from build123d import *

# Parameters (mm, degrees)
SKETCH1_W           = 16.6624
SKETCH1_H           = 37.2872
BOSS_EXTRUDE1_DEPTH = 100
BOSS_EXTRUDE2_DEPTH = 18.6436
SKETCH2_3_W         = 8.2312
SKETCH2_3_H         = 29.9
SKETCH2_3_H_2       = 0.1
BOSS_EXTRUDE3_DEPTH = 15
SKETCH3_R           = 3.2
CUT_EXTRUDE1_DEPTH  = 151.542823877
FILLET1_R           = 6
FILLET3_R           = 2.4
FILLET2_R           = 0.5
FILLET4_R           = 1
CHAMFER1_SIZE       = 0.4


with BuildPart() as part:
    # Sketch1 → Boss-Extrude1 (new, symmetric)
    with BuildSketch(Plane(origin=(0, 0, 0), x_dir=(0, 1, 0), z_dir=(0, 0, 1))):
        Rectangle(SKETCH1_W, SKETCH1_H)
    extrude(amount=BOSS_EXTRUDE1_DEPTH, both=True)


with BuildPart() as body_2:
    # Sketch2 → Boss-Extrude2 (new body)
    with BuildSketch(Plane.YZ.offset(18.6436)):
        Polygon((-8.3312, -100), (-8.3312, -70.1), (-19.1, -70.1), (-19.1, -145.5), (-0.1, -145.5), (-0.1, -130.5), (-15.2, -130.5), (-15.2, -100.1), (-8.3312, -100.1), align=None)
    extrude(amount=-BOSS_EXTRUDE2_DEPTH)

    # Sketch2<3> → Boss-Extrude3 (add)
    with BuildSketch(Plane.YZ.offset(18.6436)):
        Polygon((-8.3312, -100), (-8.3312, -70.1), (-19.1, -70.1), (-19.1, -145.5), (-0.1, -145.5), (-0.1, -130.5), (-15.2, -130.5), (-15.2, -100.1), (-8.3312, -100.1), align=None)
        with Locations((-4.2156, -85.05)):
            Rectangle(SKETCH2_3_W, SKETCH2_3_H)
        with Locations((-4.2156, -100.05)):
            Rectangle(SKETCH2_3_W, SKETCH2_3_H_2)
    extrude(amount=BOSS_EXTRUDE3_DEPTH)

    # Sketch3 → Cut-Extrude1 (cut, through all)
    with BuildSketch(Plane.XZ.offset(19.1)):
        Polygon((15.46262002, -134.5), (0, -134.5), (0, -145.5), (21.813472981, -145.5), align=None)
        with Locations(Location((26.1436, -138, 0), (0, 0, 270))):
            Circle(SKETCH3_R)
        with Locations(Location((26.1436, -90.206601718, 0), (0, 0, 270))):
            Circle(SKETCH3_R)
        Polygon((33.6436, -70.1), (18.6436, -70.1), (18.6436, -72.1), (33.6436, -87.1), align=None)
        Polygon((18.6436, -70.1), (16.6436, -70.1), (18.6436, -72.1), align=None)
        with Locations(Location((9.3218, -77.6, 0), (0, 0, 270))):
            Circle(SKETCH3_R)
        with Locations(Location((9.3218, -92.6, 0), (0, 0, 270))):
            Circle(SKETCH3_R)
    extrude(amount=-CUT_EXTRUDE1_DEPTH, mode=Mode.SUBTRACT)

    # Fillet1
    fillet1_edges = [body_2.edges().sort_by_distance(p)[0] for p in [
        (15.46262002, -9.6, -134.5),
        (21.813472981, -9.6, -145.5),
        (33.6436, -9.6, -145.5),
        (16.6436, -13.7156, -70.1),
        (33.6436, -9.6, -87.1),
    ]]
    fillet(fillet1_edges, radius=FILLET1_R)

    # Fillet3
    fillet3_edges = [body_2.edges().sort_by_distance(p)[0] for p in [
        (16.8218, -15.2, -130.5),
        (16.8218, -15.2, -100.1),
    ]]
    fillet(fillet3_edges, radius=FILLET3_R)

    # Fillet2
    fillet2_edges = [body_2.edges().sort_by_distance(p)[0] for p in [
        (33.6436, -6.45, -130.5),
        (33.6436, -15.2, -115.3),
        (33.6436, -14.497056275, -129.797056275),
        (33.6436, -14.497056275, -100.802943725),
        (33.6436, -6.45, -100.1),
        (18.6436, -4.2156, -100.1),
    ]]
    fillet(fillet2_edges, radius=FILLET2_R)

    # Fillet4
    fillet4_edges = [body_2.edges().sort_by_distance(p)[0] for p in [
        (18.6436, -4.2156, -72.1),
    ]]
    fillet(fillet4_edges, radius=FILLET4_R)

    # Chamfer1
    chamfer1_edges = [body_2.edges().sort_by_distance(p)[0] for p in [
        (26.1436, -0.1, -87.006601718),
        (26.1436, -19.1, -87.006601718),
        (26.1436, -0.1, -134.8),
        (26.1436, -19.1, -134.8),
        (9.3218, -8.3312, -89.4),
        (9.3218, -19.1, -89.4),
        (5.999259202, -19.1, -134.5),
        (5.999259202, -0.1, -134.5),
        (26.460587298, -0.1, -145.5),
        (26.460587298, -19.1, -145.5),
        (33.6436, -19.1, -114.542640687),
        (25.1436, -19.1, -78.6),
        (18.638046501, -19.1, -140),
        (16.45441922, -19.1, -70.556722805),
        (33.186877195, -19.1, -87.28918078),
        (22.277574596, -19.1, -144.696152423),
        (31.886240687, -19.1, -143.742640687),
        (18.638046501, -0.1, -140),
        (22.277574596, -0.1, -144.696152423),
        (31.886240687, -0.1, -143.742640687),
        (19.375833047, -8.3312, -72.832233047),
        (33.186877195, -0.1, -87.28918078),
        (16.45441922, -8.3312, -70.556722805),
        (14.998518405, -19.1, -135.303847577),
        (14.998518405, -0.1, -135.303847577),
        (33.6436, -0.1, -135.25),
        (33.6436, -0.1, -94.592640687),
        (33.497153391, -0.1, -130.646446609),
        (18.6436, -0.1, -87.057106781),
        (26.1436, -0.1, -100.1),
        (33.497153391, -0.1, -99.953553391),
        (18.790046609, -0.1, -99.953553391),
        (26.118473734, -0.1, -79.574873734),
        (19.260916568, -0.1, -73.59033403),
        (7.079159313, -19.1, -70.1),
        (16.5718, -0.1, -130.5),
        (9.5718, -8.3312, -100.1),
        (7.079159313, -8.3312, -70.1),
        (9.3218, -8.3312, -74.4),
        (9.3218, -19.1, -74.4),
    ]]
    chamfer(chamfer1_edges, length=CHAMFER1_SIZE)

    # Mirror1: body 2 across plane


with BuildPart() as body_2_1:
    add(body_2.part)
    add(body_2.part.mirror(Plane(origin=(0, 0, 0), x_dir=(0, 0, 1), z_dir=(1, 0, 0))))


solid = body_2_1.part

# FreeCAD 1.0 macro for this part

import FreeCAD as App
import Part
import Sketcher

V = App.Vector
Q = App.Units.Quantity


def edges_at(feature, points):
    """Names of the edges that pass closest to the given points."""
    edges = feature.Shape.Edges
    near = lambda p: min(range(len(edges)), key=lambda i: edges[i].distToShape(Part.Vertex(*p))[0])
    return sorted({f"Edge{near(p) + 1}" for p in points})


def add_polygon(sketch, points):
    """Adds a closed chain of lines whose ends are joined by coincident constraints."""
    first, n = sketch.GeometryCount, len(points)
    for a, b in zip(points, points[1:] + points[:1]):
        sketch.addGeometry(Part.LineSegment(App.Vector(*a, 0), App.Vector(*b, 0)), False)
    for i in range(n):
        sketch.addConstraint(Sketcher.Constraint("Coincident", first + i, 2, first + (i + 1) % n, 1))

doc = App.newDocument("Part")
body = doc.addObject("PartDesign::Body", "Body")

# Sketch on XY plane
sketch1 = doc.addObject("Sketcher::SketchObject", "Sketch")
body.addObject(sketch1)
sketch1.AttachmentSupport = (doc.XY_Plane, [""])
sketch1.MapMode = "FlatFace"
add_polygon(sketch1, [(-19, -8), (19, -8), (19, 8), (-19, 8)])  # lines 0-3
sketch1.addConstraint(Sketcher.Constraint("Horizontal", 0))
sketch1.addConstraint(Sketcher.Constraint("Vertical", 1))
sketch1.addConstraint(Sketcher.Constraint("Horizontal", 2))
sketch1.addConstraint(Sketcher.Constraint("Vertical", 3))
sketch1.addConstraint(Sketcher.Constraint("Symmetric", 0, 2, 2, 2, -1, 1))
sketch1.addConstraint(Sketcher.Constraint("DistanceX", 0, 1, 0, 2, Q("37.2872 mm")))
sketch1.addConstraint(Sketcher.Constraint("DistanceY", 1, 1, 1, 2, Q("16.6624 mm")))
pad1 = doc.addObject("PartDesign::Pad", "Pad")
body.addObject(pad1)
pad1.Profile = sketch1
pad1.Length = 200
pad1.Midplane = True
body2 = doc.addObject("PartDesign::Body", "Body001")

# Sketch on YZ plane
sketch2 = doc.addObject("Sketcher::SketchObject", "Sketch001")
body2.addObject(sketch2)
sketch2.AttachmentSupport = (doc.getObject("YZ_Plane001"), [""])
sketch2.MapMode = "FlatFace"
sketch2.AttachmentOffset = App.Placement(V(0, 0, 18.6436), App.Rotation())
add_polygon(sketch2, [(-8, -70), (-19, -70), (-19, -146), (0, -146), (0, -130), (-15, -130), (-15, -100), (-8, -100)])  # lines 0-7
sketch2.addConstraint(Sketcher.Constraint("Horizontal", 0))
sketch2.addConstraint(Sketcher.Constraint("Vertical", 1))
sketch2.addConstraint(Sketcher.Constraint("Horizontal", 2))
sketch2.addConstraint(Sketcher.Constraint("Vertical", 3))
sketch2.addConstraint(Sketcher.Constraint("Horizontal", 4))
sketch2.addConstraint(Sketcher.Constraint("Vertical", 5))
sketch2.addConstraint(Sketcher.Constraint("Horizontal", 6))
sketch2.addConstraint(Sketcher.Constraint("Vertical", 7))
sketch2.addConstraint(Sketcher.Constraint("DistanceX", 2, 1, 2, 2, Q("19 mm")))
sketch2.addConstraint(Sketcher.Constraint("DistanceY", 3, 1, 3, 2, Q("15 mm")))
sketch2.addConstraint(Sketcher.Constraint("DistanceY", 7, 1, 7, 2, Q("30 mm")))
sketch2.addConstraint(Sketcher.Constraint("DistanceX", 4, 2, 4, 1, Q("15.1 mm")))
sketch2.addConstraint(Sketcher.Constraint("DistanceY", 1, 2, 1, 1, Q("75.4 mm")))
sketch2.addConstraint(Sketcher.Constraint("DistanceX", 0, 2, -1, 1, Q("19.1 mm")))
sketch2.addConstraint(Sketcher.Constraint("DistanceY", 0, 2, -1, 1, Q("70.1 mm")))
sketch2.addConstraint(Sketcher.Constraint("DistanceX", 0, 2, 0, 1, Q("10.7688 mm")))
pad2 = doc.addObject("PartDesign::Pad", "Pad001")
body2.addObject(pad2)
pad2.Profile = sketch2
pad2.Length = 18.6436
pad2.Reversed = True

# Sketch on YZ plane
sketch3 = doc.addObject("Sketcher::SketchObject", "Sketch002")
body2.addObject(sketch3)
sketch3.AttachmentSupport = (doc.getObject("YZ_Plane001"), [""])
sketch3.MapMode = "FlatFace"
sketch3.AttachmentOffset = App.Placement(V(0, 0, 18.6436), App.Rotation())
add_polygon(sketch3, [(-19, -70), (-19, -146), (0, -146), (0, -130), (-15, -130), (-15, -100), (0, -100), (0, -70)])  # lines 0-7
sketch3.addConstraint(Sketcher.Constraint("Vertical", 0))
sketch3.addConstraint(Sketcher.Constraint("Horizontal", 1))
sketch3.addConstraint(Sketcher.Constraint("Vertical", 2))
sketch3.addConstraint(Sketcher.Constraint("Horizontal", 3))
sketch3.addConstraint(Sketcher.Constraint("Vertical", 4))
sketch3.addConstraint(Sketcher.Constraint("Horizontal", 5))
sketch3.addConstraint(Sketcher.Constraint("Vertical", 6))
sketch3.addConstraint(Sketcher.Constraint("Horizontal", 7))
sketch3.addConstraint(Sketcher.Constraint("Vertical", 2, 2, 5, 2))
sketch3.addConstraint(Sketcher.Constraint("DistanceX", 1, 1, 1, 2, Q("19 mm")))
sketch3.addConstraint(Sketcher.Constraint("DistanceY", 2, 1, 2, 2, Q("15 mm")))
sketch3.addConstraint(Sketcher.Constraint("DistanceY", 6, 1, 6, 2, Q("30 mm")))
sketch3.addConstraint(Sketcher.Constraint("DistanceX", 3, 2, 3, 1, Q("15.1 mm")))
sketch3.addConstraint(Sketcher.Constraint("DistanceY", 0, 2, 0, 1, Q("75.4 mm")))
sketch3.addConstraint(Sketcher.Constraint("DistanceX", 0, 2, -1, 1, Q("19.1 mm")))
sketch3.addConstraint(Sketcher.Constraint("DistanceY", 0, 2, -1, 1, Q("145.5 mm")))
pad3 = doc.addObject("PartDesign::Pad", "Pad002")
body2.addObject(pad3)
pad3.Profile = sketch3
pad3.Length = 15

# Sketch on XZ plane
sketch4 = doc.addObject("Sketcher::SketchObject", "Sketch003")
body2.addObject(sketch4)
sketch4.AttachmentSupport = (doc.getObject("XZ_Plane001"), [""])
sketch4.MapMode = "FlatFace"
sketch4.AttachmentOffset = App.Placement(V(0, 0, 19.1), App.Rotation())
add_polygon(sketch4, [(15.5, -134.5), (0, -134.5), (0, -145.5), (21.8, -145.5)])  # lines 0-3
sketch4.addGeometry(Part.Circle(V(26.1, -138, 0), V(0, 0, 1), 3.2), False)  # 4
sketch4.addGeometry(Part.Circle(V(26.1, -90.2, 0), V(0, 0, 1), 3.2), False)  # 5
add_polygon(sketch4, [(33.6, -70.1), (16.6, -70.1), (33.6, -87.1)])  # lines 6-8
sketch4.addGeometry(Part.Circle(V(9.3, -77.6, 0), V(0, 0, 1), 3.2), False)  # 9
sketch4.addGeometry(Part.Circle(V(9.3, -92.6, 0), V(0, 0, 1), 3.2), False)  # 10
sketch4.addConstraint(Sketcher.Constraint("Horizontal", 0))
sketch4.addConstraint(Sketcher.Constraint("Vertical", 1))
sketch4.addConstraint(Sketcher.Constraint("Horizontal", 2))
sketch4.addConstraint(Sketcher.Constraint("Horizontal", 6))
sketch4.addConstraint(Sketcher.Constraint("Vertical", 8))
sketch4.addConstraint(Sketcher.Constraint("Equal", 4, 5))
sketch4.addConstraint(Sketcher.Constraint("Equal", 5, 9))
sketch4.addConstraint(Sketcher.Constraint("Equal", 9, 10))
sketch4.addConstraint(Sketcher.Constraint("PointOnObject", 0, 2, -2))
sketch4.addConstraint(Sketcher.Constraint("Vertical", 4, 3, 5, 3))
sketch4.addConstraint(Sketcher.Constraint("Vertical", 9, 3, 10, 3))
sketch4.addConstraint(Sketcher.Constraint("Equal", 6, 8))
sketch4.addConstraint(Sketcher.Constraint("Diameter", 4, Q("6.4 mm")))
sketch4.addConstraint(Sketcher.Constraint("DistanceX", 6, 2, 6, 1, Q("17 mm")))
sketch4.addConstraint(Sketcher.Constraint("DistanceY", 1, 2, 1, 1, Q("11 mm")))
sketch4.addConstraint(Sketcher.Constraint("Angle", 3, Q("120 deg")))
sketch4.addConstraint(Sketcher.Constraint("DistanceY", 4, 3, -1, 1, Q("138 mm")))
sketch4.addConstraint(Sketcher.Constraint("DistanceY", 10, 3, 9, 3, Q("15 mm")))
sketch4.addConstraint(Sketcher.Constraint("DistanceY", 9, 3, -1, 1, Q("77.6 mm")))
sketch4.addConstraint(Sketcher.Constraint("DistanceY", 0, 2, -1, 1, Q("134.5 mm")))
sketch4.addConstraint(Sketcher.Constraint("DistanceY", 6, 2, -1, 1, Q("70.1 mm")))
sketch4.addConstraint(Sketcher.Constraint("DistanceX", 6, 2, 5, 3, Q("9.5 mm")))
sketch4.addConstraint(Sketcher.Constraint("DistanceX", 0, 2, 0, 1, Q("15.46262 mm")))
sketch4.addConstraint(Sketcher.Constraint("DistanceX", -1, 1, 4, 3, Q("26.1436 mm")))
sketch4.addConstraint(Sketcher.Constraint("DistanceY", 5, 3, -1, 1, Q("90.206602 mm")))
sketch4.addConstraint(Sketcher.Constraint("DistanceX", -1, 1, 9, 3, Q("9.3218 mm")))
pocket1 = doc.addObject("PartDesign::Pocket", "Pocket")
body2.addObject(pocket1)
pocket1.Profile = sketch4
pocket1.Type = "ThroughAll"
doc.recompute()

fillet = doc.addObject("PartDesign::Fillet", "Fillet")
body2.addObject(fillet)
fillet.Base = (pocket1, edges_at(pocket1, [
    (15.463, -9.6, -134.5),
    (21.813, -9.6, -145.5),
    (33.644, -9.6, -145.5),
    (16.644, -13.716, -70.1),
    (33.644, -9.6, -87.1),
]))
fillet.Radius = 6
doc.recompute()

fillet2 = doc.addObject("PartDesign::Fillet", "Fillet001")
body2.addObject(fillet2)
fillet2.Base = (fillet, edges_at(fillet, [(16.822, -15.2, -130.5), (16.822, -15.2, -100.1)]))
fillet2.Radius = 2.4
doc.recompute()

fillet3 = doc.addObject("PartDesign::Fillet", "Fillet002")
body2.addObject(fillet3)
fillet3.Base = (fillet2, edges_at(fillet2, [
    (33.644, -6.45, -130.5),
    (33.644, -15.2, -115.3),
    (33.644, -14.497, -129.797),
    (33.644, -14.497, -100.803),
    (33.644, -6.45, -100.1),
    (18.644, -4.216, -100.1),
]))
fillet3.Radius = 0.5
doc.recompute()

fillet4 = doc.addObject("PartDesign::Fillet", "Fillet003")
body2.addObject(fillet4)
fillet4.Base = (fillet3, edges_at(fillet3, [(18.644, -4.216, -72.1)]))
fillet4.Radius = 1
doc.recompute()

chamfer = doc.addObject("PartDesign::Chamfer", "Chamfer")
body2.addObject(chamfer)
chamfer.Base = (fillet4, edges_at(fillet4, [
    (26.144, -0.1, -87.007),
    (26.144, -19.1, -87.007),
    (26.144, -0.1, -134.8),
    (26.144, -19.1, -134.8),
    (9.322, -8.331, -89.4),
    (9.322, -19.1, -89.4),
    (5.999, -19.1, -134.5),
    (5.999, -0.1, -134.5),
    (26.461, -0.1, -145.5),
    (26.461, -19.1, -145.5),
    (33.644, -19.1, -114.543),
    (25.144, -19.1, -78.6),
    (18.638, -19.1, -140),
    (16.454, -19.1, -70.557),
    (33.187, -19.1, -87.289),
    (22.278, -19.1, -144.696),
    (31.886, -19.1, -143.743),
    (18.638, -0.1, -140),
    (22.278, -0.1, -144.696),
    (31.886, -0.1, -143.743),
    (19.376, -8.331, -72.832),
    (33.187, -0.1, -87.289),
    (16.454, -8.331, -70.557),
    (14.999, -19.1, -135.304),
    (14.999, -0.1, -135.304),
    (33.644, -0.1, -135.25),
    (33.644, -0.1, -94.593),
    (33.497, -0.1, -130.646),
    (18.644, -0.1, -87.057),
    (26.144, -0.1, -100.1),
    (33.497, -0.1, -99.954),
    (18.79, -0.1, -99.954),
    (26.118, -0.1, -79.575),
    (19.261, -0.1, -73.59),
    (7.079, -19.1, -70.1),
    (16.572, -0.1, -130.5),
    (9.572, -8.331, -100.1),
    (7.079, -8.331, -70.1),
    (9.322, -8.331, -74.4),
    (9.322, -19.1, -74.4),
]))
chamfer.Size = 0.4
body3 = doc.addObject("PartDesign::Body", "Body002")
doc.recompute()

body3.BaseFeature = body2
doc.recompute()

mirroring = doc.addObject("Part::Mirroring", "Mirroring")
mirroring.Source = body2
mirroring.Base = V(0, 0, 0)
mirroring.Normal = V(1, 0, 0)
body4 = doc.addObject("PartDesign::Body", "Body003")
body4.BaseFeature = mirroring
boolean = doc.addObject("PartDesign::Boolean", "Boolean")
body3.addObject(boolean)
boolean.Type = "Fuse"
boolean.addObjects([body4])
doc.recompute()
body.Visibility = False
mirroring.Visibility = False

doc.recompute()
